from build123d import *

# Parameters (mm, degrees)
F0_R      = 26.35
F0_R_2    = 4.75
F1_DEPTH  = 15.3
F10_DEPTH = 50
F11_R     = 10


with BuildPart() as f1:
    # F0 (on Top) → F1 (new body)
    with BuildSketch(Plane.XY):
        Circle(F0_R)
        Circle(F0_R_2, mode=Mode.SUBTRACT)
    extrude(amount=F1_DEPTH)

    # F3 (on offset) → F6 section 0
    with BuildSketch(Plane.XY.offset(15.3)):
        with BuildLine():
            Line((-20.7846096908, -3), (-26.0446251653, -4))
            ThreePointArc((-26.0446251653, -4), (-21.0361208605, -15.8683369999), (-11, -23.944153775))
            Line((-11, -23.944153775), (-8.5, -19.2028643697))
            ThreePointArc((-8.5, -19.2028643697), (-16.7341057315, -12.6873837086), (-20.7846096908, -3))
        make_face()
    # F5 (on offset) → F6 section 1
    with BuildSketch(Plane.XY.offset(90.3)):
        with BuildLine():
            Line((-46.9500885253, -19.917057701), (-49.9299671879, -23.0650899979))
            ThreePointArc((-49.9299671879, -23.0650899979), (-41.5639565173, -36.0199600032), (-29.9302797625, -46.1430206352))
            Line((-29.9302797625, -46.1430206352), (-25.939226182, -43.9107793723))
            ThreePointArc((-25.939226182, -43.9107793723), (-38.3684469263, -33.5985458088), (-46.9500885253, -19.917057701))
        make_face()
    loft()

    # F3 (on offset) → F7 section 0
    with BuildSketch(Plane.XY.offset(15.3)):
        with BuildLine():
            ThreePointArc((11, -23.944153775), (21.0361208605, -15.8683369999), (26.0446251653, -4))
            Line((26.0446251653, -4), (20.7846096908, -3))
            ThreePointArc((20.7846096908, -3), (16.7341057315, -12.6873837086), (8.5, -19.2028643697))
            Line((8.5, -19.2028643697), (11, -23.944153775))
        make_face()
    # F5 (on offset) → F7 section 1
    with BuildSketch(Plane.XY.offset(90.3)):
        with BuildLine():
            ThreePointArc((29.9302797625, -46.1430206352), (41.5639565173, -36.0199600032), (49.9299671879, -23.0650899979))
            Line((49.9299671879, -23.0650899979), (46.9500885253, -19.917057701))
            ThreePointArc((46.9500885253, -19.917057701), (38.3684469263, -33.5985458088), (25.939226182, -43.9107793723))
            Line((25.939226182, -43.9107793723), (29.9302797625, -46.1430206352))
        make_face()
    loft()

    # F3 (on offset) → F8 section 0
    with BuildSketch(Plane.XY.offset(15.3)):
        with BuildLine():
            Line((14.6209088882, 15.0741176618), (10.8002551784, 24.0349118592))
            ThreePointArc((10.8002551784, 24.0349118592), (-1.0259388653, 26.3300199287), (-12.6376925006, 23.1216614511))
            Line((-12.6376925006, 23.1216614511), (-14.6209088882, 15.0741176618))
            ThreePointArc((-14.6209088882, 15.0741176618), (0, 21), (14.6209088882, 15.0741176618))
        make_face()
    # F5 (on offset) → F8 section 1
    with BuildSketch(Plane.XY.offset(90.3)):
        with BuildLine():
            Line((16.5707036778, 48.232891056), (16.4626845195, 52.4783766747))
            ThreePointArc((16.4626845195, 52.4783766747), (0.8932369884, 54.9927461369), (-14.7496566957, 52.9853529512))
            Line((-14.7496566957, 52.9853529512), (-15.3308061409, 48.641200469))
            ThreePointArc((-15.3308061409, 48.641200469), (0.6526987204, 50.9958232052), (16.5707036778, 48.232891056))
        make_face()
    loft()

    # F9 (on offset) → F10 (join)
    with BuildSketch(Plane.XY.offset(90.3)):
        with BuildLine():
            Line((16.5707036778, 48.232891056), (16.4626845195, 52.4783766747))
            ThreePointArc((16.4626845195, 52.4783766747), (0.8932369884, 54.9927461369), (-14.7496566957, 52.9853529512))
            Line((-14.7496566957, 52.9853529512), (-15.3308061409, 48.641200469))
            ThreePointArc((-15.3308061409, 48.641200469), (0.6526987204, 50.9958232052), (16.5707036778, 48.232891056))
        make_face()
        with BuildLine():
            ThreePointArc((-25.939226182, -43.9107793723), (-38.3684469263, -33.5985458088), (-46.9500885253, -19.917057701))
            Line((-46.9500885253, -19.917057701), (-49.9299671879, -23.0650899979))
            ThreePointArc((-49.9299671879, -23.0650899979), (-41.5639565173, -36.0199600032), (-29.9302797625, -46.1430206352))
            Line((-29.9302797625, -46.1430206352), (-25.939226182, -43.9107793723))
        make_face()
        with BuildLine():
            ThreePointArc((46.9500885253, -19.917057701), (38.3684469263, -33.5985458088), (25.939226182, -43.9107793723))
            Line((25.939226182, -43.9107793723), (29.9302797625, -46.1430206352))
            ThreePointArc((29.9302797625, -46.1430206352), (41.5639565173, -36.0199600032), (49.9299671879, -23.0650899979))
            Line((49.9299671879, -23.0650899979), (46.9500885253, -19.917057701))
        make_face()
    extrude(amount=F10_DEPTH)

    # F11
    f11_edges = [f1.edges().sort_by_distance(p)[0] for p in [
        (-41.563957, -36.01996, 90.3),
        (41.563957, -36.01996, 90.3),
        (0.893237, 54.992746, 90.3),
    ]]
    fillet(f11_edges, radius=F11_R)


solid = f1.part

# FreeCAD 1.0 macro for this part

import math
import FreeCAD as App
import Part
import Sketcher
from FreeCAD import Vector


def edges_at(feature, points):
    """Names of the edges that pass closest to the given points."""
    edges = feature.Shape.Edges
    near = lambda p: min(range(len(edges)), key=lambda i: edges[i].distToShape(Part.Vertex(*p))[0])
    return sorted({f"Edge{near(p) + 1}" for p in points})

doc = App.newDocument("Part")
body = doc.addObject("PartDesign::Body", "Body")

sketch1 = body.newObject("Sketcher::SketchObject", "Sketch")
sketch1.AttachmentSupport = (doc.getObject("XY_Plane"), [""])
sketch1.MapMode = "FlatFace"
sketch1.addGeometry(Part.Circle(Vector(0, 0, 0), Vector(0, 0, 1), 26.35), False)
sketch1.addGeometry(Part.Circle(Vector(0, 0, 0), Vector(0, 0, 1), 4.75), False)
sketch1.addConstraint(Sketcher.Constraint("Coincident", 0, 3, -1, 1))
sketch1.addConstraint(Sketcher.Constraint("Coincident", 1, 3, -1, 1))
sketch1.addConstraint(Sketcher.Constraint("Diameter", 0, 52.7))
sketch1.addConstraint(Sketcher.Constraint("Diameter", 1, 9.5))
pad1 = body.newObject("PartDesign::Pad", "Pad")
pad1.Profile = sketch1
pad1.Length = 15.3

sketch2 = body.newObject("Sketcher::SketchObject", "Sketch001")
sketch2.AttachmentSupport = (doc.getObject("XY_Plane"), [""])
sketch2.MapMode = "FlatFace"
sketch2.AttachmentOffset = App.Placement(Vector(0, 0, 15.3), App.Rotation())
sketch2.addGeometry(Part.LineSegment(Vector(-20.78461, -3, 0), Vector(-26.044625, -4, 0)), False)
sketch2.addGeometry(Part.ArcOfCircle(Part.Circle(Vector(0, 0, 0), Vector(0, 0, 1), 26.35), math.radians(-171.268592), math.radians(-114.67416)), False)
sketch2.addGeometry(Part.LineSegment(Vector(-11, -23.944154, 0), Vector(-8.5, -19.202864, 0)), False)
sketch2.addGeometry(Part.ArcOfCircle(Part.Circle(Vector(0, 0, 0), Vector(0, 0, 1), 21), math.radians(-171.786789), math.radians(-113.876208)), False)
sketch2.addConstraint(Sketcher.Constraint("Coincident", 0, 2, 1, 1))
sketch2.addConstraint(Sketcher.Constraint("Coincident", 1, 2, 2, 1))
sketch2.addConstraint(Sketcher.Constraint("Coincident", 2, 2, 3, 2))
sketch2.addConstraint(Sketcher.Constraint("Coincident", 3, 1, 0, 1))
sketch2.addConstraint(Sketcher.Constraint("Coincident", 1, 3, -1, 1))
sketch2.addConstraint(Sketcher.Constraint("Coincident", 3, 3, -1, 1))
sketch2.addConstraint(Sketcher.Constraint("Radius", 3, 21.0))
sketch2.addConstraint(Sketcher.Constraint("Radius", 1, 26.35))
sketch2.addConstraint(Sketcher.Constraint("DistanceY", 0, 2, -1, 1, 4.0))
sketch2.addConstraint(Sketcher.Constraint("DistanceX", 1, 2, -1, 1, 11.0))
sketch2.addConstraint(Sketcher.Constraint("DistanceY", 3, 1, -1, 1, 3.0))
sketch2.addConstraint(Sketcher.Constraint("DistanceX", 2, 2, -1, 1, 8.5))

sketch3 = body.newObject("Sketcher::SketchObject", "Sketch002")
sketch3.AttachmentSupport = (doc.getObject("XY_Plane"), [""])
sketch3.MapMode = "FlatFace"
sketch3.AttachmentOffset = App.Placement(Vector(0, 0, 90.3), App.Rotation())
sketch3.addGeometry(Part.LineSegment(Vector(-46.950089, -19.917058, 0), Vector(-49.929967, -23.06509, 0)), False)
sketch3.addGeometry(Part.ArcOfCircle(Part.Circle(Vector(0, 0, 0), Vector(0, 0, 1), 55), math.radians(-155.205479), math.radians(-122.969117)), False)
sketch3.addGeometry(Part.LineSegment(Vector(-29.93028, -46.143021, 0), Vector(-25.939226, -43.910779, 0)), False)
sketch3.addGeometry(Part.ArcOfCircle(Part.Circle(Vector(0, 0, 0), Vector(0, 0, 1), 51), math.radians(-157.012485), math.radians(-120.571438)), False)
sketch3.addConstraint(Sketcher.Constraint("Coincident", 0, 2, 1, 1))
sketch3.addConstraint(Sketcher.Constraint("Coincident", 1, 2, 2, 1))
sketch3.addConstraint(Sketcher.Constraint("Coincident", 2, 2, 3, 2))
sketch3.addConstraint(Sketcher.Constraint("Coincident", 3, 1, 0, 1))
sketch3.addConstraint(Sketcher.Constraint("Coincident", 1, 3, -1, 1))
sketch3.addConstraint(Sketcher.Constraint("Coincident", 3, 3, -1, 1))
sketch3.addConstraint(Sketcher.Constraint("Radius", 1, 55.0))
sketch3.addConstraint(Sketcher.Constraint("Radius", 3, 51.0))
sketch3.addConstraint(Sketcher.Constraint("Distance", 2, 4.572899))
sketch3.addConstraint(Sketcher.Constraint("Distance", 0, 4.334718))
sketch3.addConstraint(Sketcher.Constraint("DistanceY", 0, 2, -1, 1, 23.06509))
sketch3.addConstraint(Sketcher.Constraint("DistanceX", 1, 2, -1, 1, 29.93028))

additiveloft = body.newObject("PartDesign::AdditiveLoft", "AdditiveLoft")
additiveloft.Profile = sketch2
additiveloft.Sections = [sketch3]

sketch4 = body.newObject("Sketcher::SketchObject", "Sketch003")
sketch4.AttachmentSupport = (doc.getObject("XY_Plane"), [""])
sketch4.MapMode = "FlatFace"
sketch4.AttachmentOffset = App.Placement(Vector(0, 0, 15.3), App.Rotation())
sketch4.addGeometry(Part.ArcOfCircle(Part.Circle(Vector(0, 0, 0), Vector(0, 0, 1), 26.35), math.radians(-65.32584), math.radians(-8.731408)), False)
sketch4.addGeometry(Part.LineSegment(Vector(26.044625, -4, 0), Vector(20.78461, -3, 0)), False)
sketch4.addGeometry(Part.ArcOfCircle(Part.Circle(Vector(0, 0, 0), Vector(0, 0, 1), 21), math.radians(-66.123792), math.radians(-8.213211)), False)
sketch4.addGeometry(Part.LineSegment(Vector(8.5, -19.202864, 0), Vector(11, -23.944154, 0)), False)
sketch4.addConstraint(Sketcher.Constraint("Coincident", 0, 2, 1, 1))
sketch4.addConstraint(Sketcher.Constraint("Coincident", 1, 2, 2, 2))
sketch4.addConstraint(Sketcher.Constraint("Coincident", 2, 1, 3, 1))
sketch4.addConstraint(Sketcher.Constraint("Coincident", 3, 2, 0, 1))
sketch4.addConstraint(Sketcher.Constraint("Coincident", 0, 3, -1, 1))
sketch4.addConstraint(Sketcher.Constraint("Coincident", 2, 3, -1, 1))
sketch4.addConstraint(Sketcher.Constraint("Radius", 2, 21.0))
sketch4.addConstraint(Sketcher.Constraint("Radius", 0, 26.35))
sketch4.addConstraint(Sketcher.Constraint("DistanceY", 0, 2, -1, 1, 4.0))
sketch4.addConstraint(Sketcher.Constraint("DistanceY", 1, 2, -1, 1, 3.0))
sketch4.addConstraint(Sketcher.Constraint("DistanceX", -1, 1, 3, 2, 11.0))
sketch4.addConstraint(Sketcher.Constraint("DistanceX", -1, 1, 2, 1, 8.5))

sketch5 = body.newObject("Sketcher::SketchObject", "Sketch004")
sketch5.AttachmentSupport = (doc.getObject("XY_Plane"), [""])
sketch5.MapMode = "FlatFace"
sketch5.AttachmentOffset = App.Placement(Vector(0, 0, 90.3), App.Rotation())
sketch5.addGeometry(Part.ArcOfCircle(Part.Circle(Vector(0, 0, 0), Vector(0, 0, 1), 55), math.radians(-57.030883), math.radians(-24.794521)), False)
sketch5.addGeometry(Part.LineSegment(Vector(49.929967, -23.06509, 0), Vector(46.950089, -19.917058, 0)), False)
sketch5.addGeometry(Part.ArcOfCircle(Part.Circle(Vector(0, 0, 0), Vector(0, 0, 1), 51), math.radians(-59.428562), math.radians(-22.987515)), False)
sketch5.addGeometry(Part.LineSegment(Vector(25.939226, -43.910779, 0), Vector(29.93028, -46.143021, 0)), False)
sketch5.addConstraint(Sketcher.Constraint("Coincident", 0, 2, 1, 1))
sketch5.addConstraint(Sketcher.Constraint("Coincident", 1, 2, 2, 2))
sketch5.addConstraint(Sketcher.Constraint("Coincident", 2, 1, 3, 1))
sketch5.addConstraint(Sketcher.Constraint("Coincident", 3, 2, 0, 1))
sketch5.addConstraint(Sketcher.Constraint("Coincident", 0, 3, -1, 1))
sketch5.addConstraint(Sketcher.Constraint("Coincident", 2, 3, -1, 1))
sketch5.addConstraint(Sketcher.Constraint("Radius", 0, 55.0))
sketch5.addConstraint(Sketcher.Constraint("Radius", 2, 51.0))
sketch5.addConstraint(Sketcher.Constraint("Distance", 3, 4.572899))
sketch5.addConstraint(Sketcher.Constraint("Distance", 1, 4.334718))
sketch5.addConstraint(Sketcher.Constraint("DistanceY", 0, 2, -1, 1, 23.06509))
sketch5.addConstraint(Sketcher.Constraint("DistanceY", 2, 1, -1, 1, 43.910779))

additiveloft2 = body.newObject("PartDesign::AdditiveLoft", "AdditiveLoft001")
additiveloft2.Profile = sketch4
additiveloft2.Sections = [sketch5]

sketch6 = body.newObject("Sketcher::SketchObject", "Sketch005")
sketch6.AttachmentSupport = (doc.getObject("XY_Plane"), [""])
sketch6.MapMode = "FlatFace"
sketch6.AttachmentOffset = App.Placement(Vector(0, 0, 15.3), App.Rotation())
sketch6.addGeometry(Part.LineSegment(Vector(14.620909, 15.074118, 0), Vector(10.800255, 24.034912, 0)), False)
sketch6.addGeometry(Part.ArcOfCircle(Part.Circle(Vector(0, 0, 0), Vector(0, 0, 1), 26.35), math.radians(65.802901), math.radians(118.659857)), False)
sketch6.addGeometry(Part.LineSegment(Vector(-12.637693, 23.121661, 0), Vector(-14.620909, 15.074118, 0)), False)
sketch6.addGeometry(Part.ArcOfCircle(Part.Circle(Vector(0, 0, 0), Vector(0, 0, 1), 21), math.radians(45.874387), math.radians(134.125613)), False)
sketch6.addConstraint(Sketcher.Constraint("Coincident", 0, 2, 1, 1))
sketch6.addConstraint(Sketcher.Constraint("Coincident", 1, 2, 2, 1))
sketch6.addConstraint(Sketcher.Constraint("Coincident", 2, 2, 3, 2))
sketch6.addConstraint(Sketcher.Constraint("Coincident", 3, 1, 0, 1))
sketch6.addConstraint(Sketcher.Constraint("Coincident", 1, 3, -1, 1))
sketch6.addConstraint(Sketcher.Constraint("Coincident", 3, 3, -1, 1))
sketch6.addConstraint(Sketcher.Constraint("Horizontal", 2, 2, 3, 1))
sketch6.addConstraint(Sketcher.Constraint("Radius", 3, 21.0))
sketch6.addConstraint(Sketcher.Constraint("Radius", 1, 26.35))
sketch6.addConstraint(Sketcher.Constraint("DistanceX", 1, 2, 3, 1, 27.258601))
sketch6.addConstraint(Sketcher.Constraint("Distance", 2, 8.288312))
sketch6.addConstraint(Sketcher.Constraint("DistanceY", -1, 1, 0, 2, 24.034912))

sketch7 = body.newObject("Sketcher::SketchObject", "Sketch006")
sketch7.AttachmentSupport = (doc.getObject("XY_Plane"), [""])
sketch7.MapMode = "FlatFace"
sketch7.AttachmentOffset = App.Placement(Vector(0, 0, 90.3), App.Rotation())
sketch7.addGeometry(Part.LineSegment(Vector(16.570704, 48.232891, 0), Vector(16.462685, 52.478377, 0)), False)
sketch7.addGeometry(Part.ArcOfCircle(Part.Circle(Vector(0, 0, 0), Vector(0, 0, 1), 55), math.radians(72.583142), math.radians(105.555732)), False)
sketch7.addGeometry(Part.LineSegment(Vector(-14.749657, 52.985353, 0), Vector(-15.330806, 48.6412, 0)), False)
sketch7.addGeometry(Part.ArcOfCircle(Part.Circle(Vector(0, 0, 0), Vector(0, 0, 1), 51), math.radians(71.039529), math.radians(107.493887)), False)
sketch7.addConstraint(Sketcher.Constraint("Coincident", 0, 2, 1, 1))
sketch7.addConstraint(Sketcher.Constraint("Coincident", 1, 2, 2, 1))
sketch7.addConstraint(Sketcher.Constraint("Coincident", 2, 2, 3, 2))
sketch7.addConstraint(Sketcher.Constraint("Coincident", 3, 1, 0, 1))
sketch7.addConstraint(Sketcher.Constraint("Coincident", 1, 3, -1, 1))
sketch7.addConstraint(Sketcher.Constraint("Coincident", 3, 3, -1, 1))
sketch7.addConstraint(Sketcher.Constraint("Radius", 1, 55.0))
sketch7.addConstraint(Sketcher.Constraint("Radius", 3, 51.0))
sketch7.addConstraint(Sketcher.Constraint("DistanceY", -1, 1, 2, 2, 48.6412))
sketch7.addConstraint(Sketcher.Constraint("Distance", 0, 4.24686))
sketch7.addConstraint(Sketcher.Constraint("DistanceY", -1, 1, 3, 1, 48.232891))
sketch7.addConstraint(Sketcher.Constraint("DistanceX", 1, 2, 0, 2, 31.212341))

additiveloft3 = body.newObject("PartDesign::AdditiveLoft", "AdditiveLoft002")
additiveloft3.Profile = sketch6
additiveloft3.Sections = [sketch7]

sketch8 = body.newObject("Sketcher::SketchObject", "Sketch007")
sketch8.AttachmentSupport = (doc.getObject("XY_Plane"), [""])
sketch8.MapMode = "FlatFace"
sketch8.AttachmentOffset = App.Placement(Vector(0, 0, 90.3), App.Rotation())
sketch8.addGeometry(Part.LineSegment(Vector(16.570704, 48.232891, 0), Vector(16.462685, 52.478377, 0)), False)
sketch8.addGeometry(Part.ArcOfCircle(Part.Circle(Vector(0, 0, 0), Vector(0, 0, 1), 55), math.radians(72.583142), math.radians(105.555732)), False)
sketch8.addGeometry(Part.LineSegment(Vector(-14.749657, 52.985353, 0), Vector(-15.330806, 48.6412, 0)), False)
sketch8.addGeometry(Part.ArcOfCircle(Part.Circle(Vector(0, 0, 0), Vector(0, 0, 1), 51), math.radians(71.039529), math.radians(107.493887)), False)
sketch8.addGeometry(Part.ArcOfCircle(Part.Circle(Vector(0, 0, 0), Vector(0, 0, 1), 51), math.radians(-157.012485), math.radians(-120.571438)), False)
sketch8.addGeometry(Part.LineSegment(Vector(-46.950089, -19.917058, 0), Vector(-49.929967, -23.06509, 0)), False)
sketch8.addGeometry(Part.ArcOfCircle(Part.Circle(Vector(0, 0, 0), Vector(0, 0, 1), 55), math.radians(-155.205479), math.radians(-122.969117)), False)
sketch8.addGeometry(Part.LineSegment(Vector(-29.93028, -46.143021, 0), Vector(-25.939226, -43.910779, 0)), False)
sketch8.addGeometry(Part.ArcOfCircle(Part.Circle(Vector(0, 0, 0), Vector(0, 0, 1), 51), math.radians(-59.428562), math.radians(-22.987515)), False)
sketch8.addGeometry(Part.LineSegment(Vector(25.939226, -43.910779, 0), Vector(29.93028, -46.143021, 0)), False)
sketch8.addGeometry(Part.ArcOfCircle(Part.Circle(Vector(0, 0, 0), Vector(0, 0, 1), 55), math.radians(-57.030883), math.radians(-24.794521)), False)
sketch8.addGeometry(Part.LineSegment(Vector(49.929967, -23.06509, 0), Vector(46.950089, -19.917058, 0)), False)
sketch8.addConstraint(Sketcher.Constraint("Coincident", 0, 2, 1, 1))
sketch8.addConstraint(Sketcher.Constraint("Coincident", 1, 2, 2, 1))
sketch8.addConstraint(Sketcher.Constraint("Coincident", 2, 2, 3, 2))
sketch8.addConstraint(Sketcher.Constraint("Coincident", 3, 1, 0, 1))
sketch8.addConstraint(Sketcher.Constraint("Coincident", 4, 1, 5, 1))
sketch8.addConstraint(Sketcher.Constraint("Coincident", 5, 2, 6, 1))
sketch8.addConstraint(Sketcher.Constraint("Coincident", 6, 2, 7, 1))
sketch8.addConstraint(Sketcher.Constraint("Coincident", 7, 2, 4, 2))
sketch8.addConstraint(Sketcher.Constraint("Coincident", 8, 1, 9, 1))
sketch8.addConstraint(Sketcher.Constraint("Coincident", 9, 2, 10, 1))
sketch8.addConstraint(Sketcher.Constraint("Coincident", 10, 2, 11, 1))
sketch8.addConstraint(Sketcher.Constraint("Coincident", 11, 2, 8, 2))
sketch8.addConstraint(Sketcher.Constraint("Coincident", 1, 3, -1, 1))
sketch8.addConstraint(Sketcher.Constraint("Coincident", 3, 3, -1, 1))
sketch8.addConstraint(Sketcher.Constraint("Coincident", 4, 3, -1, 1))
sketch8.addConstraint(Sketcher.Constraint("Coincident", 6, 3, -1, 1))
sketch8.addConstraint(Sketcher.Constraint("Coincident", 8, 3, -1, 1))
sketch8.addConstraint(Sketcher.Constraint("Coincident", 10, 3, -1, 1))
sketch8.addConstraint(Sketcher.Constraint("Equal", 3, 4))
sketch8.addConstraint(Sketcher.Constraint("Equal", 1, 6))
sketch8.addConstraint(Sketcher.Constraint("Equal", 4, 8))
sketch8.addConstraint(Sketcher.Constraint("Equal", 6, 10))
sketch8.addConstraint(Sketcher.Constraint("Horizontal", 7, 2, 8, 1))
sketch8.addConstraint(Sketcher.Constraint("Horizontal", 6, 2, 9, 2))
sketch8.addConstraint(Sketcher.Constraint("Horizontal", 5, 2, 10, 2))
sketch8.addConstraint(Sketcher.Constraint("Horizontal", 4, 1, 11, 2))
sketch8.addConstraint(Sketcher.Constraint("Radius", 1, 55.0))
sketch8.addConstraint(Sketcher.Constraint("Radius", 3, 51.0))
sketch8.addConstraint(Sketcher.Constraint("Distance", 7, 4.572899))
sketch8.addConstraint(Sketcher.Constraint("DistanceY", -1, 1, 2, 2, 48.6412))
sketch8.addConstraint(Sketcher.Constraint("Distance", 0, 4.24686))
sketch8.addConstraint(Sketcher.Constraint("Distance", 5, 4.334718))
sketch8.addConstraint(Sketcher.Constraint("DistanceY", -1, 1, 3, 1, 48.232891))
sketch8.addConstraint(Sketcher.Constraint("DistanceX", 4, 1, -1, 1, 46.950089))
sketch8.addConstraint(Sketcher.Constraint("DistanceX", 6, 2, -1, 1, 29.93028))
sketch8.addConstraint(Sketcher.Constraint("DistanceX", 1, 2, 0, 2, 31.212341))
pad2 = body.newObject("PartDesign::Pad", "Pad001")
pad2.Profile = sketch8
pad2.Length = 50
doc.recompute()

fillet = body.newObject("PartDesign::Fillet", "Fillet")
fillet.Base = (pad2, edges_at(pad2, [(-41.564, -36.02, 90.3), (41.564, -36.02, 90.3), (0.893, 54.993, 90.3)]))
fillet.Radius = 10

doc.recompute()
